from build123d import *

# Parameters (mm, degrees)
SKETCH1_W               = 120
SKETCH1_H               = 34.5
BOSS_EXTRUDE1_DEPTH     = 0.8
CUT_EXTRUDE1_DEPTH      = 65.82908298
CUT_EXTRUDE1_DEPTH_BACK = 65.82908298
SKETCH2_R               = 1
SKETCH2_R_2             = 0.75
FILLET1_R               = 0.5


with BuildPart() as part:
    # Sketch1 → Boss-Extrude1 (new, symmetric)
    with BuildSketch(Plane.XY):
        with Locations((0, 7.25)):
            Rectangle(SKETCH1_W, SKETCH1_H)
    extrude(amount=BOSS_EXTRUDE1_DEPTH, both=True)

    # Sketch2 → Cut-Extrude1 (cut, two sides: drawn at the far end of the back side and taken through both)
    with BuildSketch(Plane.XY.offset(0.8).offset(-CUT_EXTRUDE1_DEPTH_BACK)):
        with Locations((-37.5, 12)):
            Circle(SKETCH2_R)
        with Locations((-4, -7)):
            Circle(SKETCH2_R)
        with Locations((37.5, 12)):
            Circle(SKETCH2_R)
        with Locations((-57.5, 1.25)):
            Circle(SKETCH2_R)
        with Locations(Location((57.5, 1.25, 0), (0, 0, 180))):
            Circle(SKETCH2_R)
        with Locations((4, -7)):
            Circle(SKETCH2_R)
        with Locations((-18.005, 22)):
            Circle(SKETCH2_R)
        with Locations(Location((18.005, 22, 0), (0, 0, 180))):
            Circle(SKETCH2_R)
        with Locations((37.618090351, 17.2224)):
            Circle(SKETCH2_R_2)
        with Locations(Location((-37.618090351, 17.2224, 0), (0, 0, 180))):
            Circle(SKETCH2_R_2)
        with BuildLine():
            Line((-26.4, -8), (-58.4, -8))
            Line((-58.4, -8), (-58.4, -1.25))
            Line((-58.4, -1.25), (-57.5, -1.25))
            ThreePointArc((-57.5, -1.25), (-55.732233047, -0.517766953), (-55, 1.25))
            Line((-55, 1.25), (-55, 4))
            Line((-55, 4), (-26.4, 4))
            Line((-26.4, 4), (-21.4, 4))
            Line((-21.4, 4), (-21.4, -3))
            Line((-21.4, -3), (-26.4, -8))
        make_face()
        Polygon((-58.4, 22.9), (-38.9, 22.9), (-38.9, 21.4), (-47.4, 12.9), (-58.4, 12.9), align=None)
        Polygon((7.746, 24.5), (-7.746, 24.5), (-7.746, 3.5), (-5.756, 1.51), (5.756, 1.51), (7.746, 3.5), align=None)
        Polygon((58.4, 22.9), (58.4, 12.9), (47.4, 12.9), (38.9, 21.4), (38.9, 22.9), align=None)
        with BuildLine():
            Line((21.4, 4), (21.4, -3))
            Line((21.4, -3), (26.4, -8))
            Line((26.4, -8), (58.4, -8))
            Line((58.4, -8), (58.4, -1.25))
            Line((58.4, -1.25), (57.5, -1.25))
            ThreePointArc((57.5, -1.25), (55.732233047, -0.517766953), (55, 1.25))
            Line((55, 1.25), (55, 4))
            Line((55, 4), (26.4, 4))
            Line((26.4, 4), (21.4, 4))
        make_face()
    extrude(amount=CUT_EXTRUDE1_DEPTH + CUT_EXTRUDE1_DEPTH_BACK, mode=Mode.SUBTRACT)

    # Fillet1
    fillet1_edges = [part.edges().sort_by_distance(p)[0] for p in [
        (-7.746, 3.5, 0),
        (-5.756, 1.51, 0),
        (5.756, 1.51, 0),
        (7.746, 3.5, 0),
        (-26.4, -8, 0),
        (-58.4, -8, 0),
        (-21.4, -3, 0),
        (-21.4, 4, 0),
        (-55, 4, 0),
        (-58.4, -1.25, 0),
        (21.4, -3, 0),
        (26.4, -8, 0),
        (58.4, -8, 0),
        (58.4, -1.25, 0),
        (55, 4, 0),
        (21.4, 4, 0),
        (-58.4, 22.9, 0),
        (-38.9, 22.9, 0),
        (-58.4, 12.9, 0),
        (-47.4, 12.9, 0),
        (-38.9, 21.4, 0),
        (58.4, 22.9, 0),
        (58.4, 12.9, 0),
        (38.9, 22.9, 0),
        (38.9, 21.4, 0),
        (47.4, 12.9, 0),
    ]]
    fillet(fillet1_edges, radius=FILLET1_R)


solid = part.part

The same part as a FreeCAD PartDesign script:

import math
import FreeCAD as App
import Part
import Sketcher

V = App.Vector
Q = App.Units.Quantity


def edges_at(feature, points):
    """Names of the edges that pass closest to the given points."""
    edges = feature.Shape.Edges
    near = lambda p: min(range(len(edges)), key=lambda i: edges[i].distToShape(Part.Vertex(*p))[0])
    return sorted({f"Edge{near(p) + 1}" for p in points})


def add_polygon(sketch, points):
    """Adds a closed chain of lines whose ends are joined by coincident constraints."""
    first, n = sketch.GeometryCount, len(points)
    for a, b in zip(points, points[1:] + points[:1]):
        sketch.addGeometry(Part.LineSegment(App.Vector(*a, 0), App.Vector(*b, 0)), False)
    for i in range(n):
        sketch.addConstraint(Sketcher.Constraint("Coincident", first + i, 2, first + (i + 1) % n, 1))

doc = App.newDocument("Part")
body = doc.addObject("PartDesign::Body", "Body")

# Sketch on XY plane
sketch1 = doc.addObject("Sketcher::SketchObject", "Sketch")
body.addObject(sketch1)
sketch1.AttachmentSupport = (doc.XY_Plane, [""])
sketch1.MapMode = "FlatFace"
add_polygon(sketch1, [(-60, 24), (-60, -10), (60, -10), (60, 24)])  # lines 0-3
sketch1.addConstraint([
    Sketcher.Constraint("Vertical", 0),
    Sketcher.Constraint("Horizontal", 1),
    Sketcher.Constraint("Vertical", 2),
    Sketcher.Constraint("Horizontal", 3),
    Sketcher.Constraint("DistanceX", 1, 1, 1, 2, Q("120 mm")),
    Sketcher.Constraint("DistanceY", 0, 2, 0, 1, Q("34.5 mm")),
    Sketcher.Constraint("DistanceX", 0, 2, -1, 1, Q("60 mm")),
    Sketcher.Constraint("DistanceY", 0, 2, -1, 1, Q("10 mm")),
])
pad1 = doc.addObject("PartDesign::Pad", "Pad")
body.addObject(pad1)
pad1.Profile = sketch1
pad1.Length = 1.6
pad1.Midplane = True

# Sketch on XY plane
sketch2 = doc.addObject("Sketcher::SketchObject", "Sketch001")
body.addObject(sketch2)
sketch2.AttachmentSupport = (doc.XY_Plane, [""])
sketch2.MapMode = "FlatFace"
sketch2.AttachmentOffset = App.Placement(V(0, 0, 0.8), App.Rotation())
sketch2.addGeometry(Part.Circle(V(-37.5, 12, 0), V(0, 0, 1), 1), False)  # 0
sketch2.addGeometry(Part.Circle(V(-4, -7, 0), V(0, 0, 1), 1), False)  # 1
sketch2.addGeometry(Part.Circle(V(37.5, 12, 0), V(0, 0, 1), 1), False)  # 2
sketch2.addGeometry(Part.Circle(V(-57.5, 1.2, 0), V(0, 0, 1), 1), False)  # 3
sketch2.addGeometry(Part.Circle(V(57.5, 1.2, 0), V(0, 0, 1), 1), False)  # 4
sketch2.addGeometry(Part.Circle(V(4, -7, 0), V(0, 0, 1), 1), False)  # 5
sketch2.addGeometry(Part.Circle(V(-18, 22, 0), V(0, 0, 1), 1), False)  # 6
sketch2.addGeometry(Part.Circle(V(18, 22, 0), V(0, 0, 1), 1), False)  # 7
sketch2.addGeometry(Part.Circle(V(37.6, 17.2, 0), V(0, 0, 1), 0.8), False)  # 8
sketch2.addGeometry(Part.Circle(V(-37.6, 17.2, 0), V(0, 0, 1), 0.8), False)  # 9
sketch2.addGeometry(Part.LineSegment(V(-58.4, -8, 0), V(-26.4, -8, 0)), False)  # 10
sketch2.addGeometry(Part.LineSegment(V(-26.4, -8, 0), V(-21.4, -3, 0)), False)  # 11
sketch2.addGeometry(Part.LineSegment(V(-21.4, -3, 0), V(-21.4, 4, 0)), False)  # 12
sketch2.addGeometry(Part.LineSegment(V(-21.4, 4, 0), V(-55, 4, 0)), False)  # 13
sketch2.addGeometry(Part.LineSegment(V(-55, 4, 0), V(-55, 1.2, 0)), False)  # 14
sketch2.addGeometry(Part.ArcOfCircle(Part.Circle(V(-57.5, 1.2, 0), V(0, 0, 1), 2.5), math.radians(-90), math.radians(0)), False)  # 15
sketch2.addGeometry(Part.LineSegment(V(-57.5, -1.2, 0), V(-58.4, -1.2, 0)), False)  # 16
sketch2.addGeometry(Part.LineSegment(V(-58.4, -1.2, 0), V(-58.4, -8, 0)), False)  # 17
add_polygon(sketch2, [(-38.9, 22.9), (-58.4, 22.9), (-58.4, 12.9), (-47.4, 12.9), (-38.9, 21.4)])  # lines 18-22
add_polygon(sketch2, [(7.7, 24.5), (-7.7, 24.5), (-7.7, 3.5), (-5.8, 1.5), (5.8, 1.5), (7.7, 3.5)])  # lines 23-28
add_polygon(sketch2, [(58.4, 12.9), (58.4, 22.9), (38.9, 22.9), (38.9, 21.4), (47.4, 12.9)])  # lines 29-33
sketch2.addGeometry(Part.LineSegment(V(21.4, 4, 0), V(21.4, -3, 0)), False)  # 34
sketch2.addGeometry(Part.LineSegment(V(21.4, -3, 0), V(26.4, -8, 0)), False)  # 35
sketch2.addGeometry(Part.LineSegment(V(26.4, -8, 0), V(58.4, -8, 0)), False)  # 36
sketch2.addGeometry(Part.LineSegment(V(58.4, -8, 0), V(58.4, -1.2, 0)), False)  # 37
sketch2.addGeometry(Part.LineSegment(V(58.4, -1.2, 0), V(57.5, -1.2, 0)), False)  # 38
sketch2.addGeometry(Part.ArcOfCircle(Part.Circle(V(57.5, 1.2, 0), V(0, 0, 1), 2.5), math.radians(180), math.radians(270)), False)  # 39
sketch2.addGeometry(Part.LineSegment(V(55, 1.2, 0), V(55, 4, 0)), False)  # 40
sketch2.addGeometry(Part.LineSegment(V(55, 4, 0), V(21.4, 4, 0)), False)  # 41
sketch2.addConstraint([
    Sketcher.Constraint("Coincident", 10, 2, 11, 1),
    Sketcher.Constraint("Coincident", 11, 2, 12, 1),
    Sketcher.Constraint("Coincident", 12, 2, 13, 1),
    Sketcher.Constraint("Coincident", 13, 2, 14, 1),
    Sketcher.Constraint("Tangent", 14, 2, 15, 2),
    Sketcher.Constraint("Tangent", 15, 1, 16, 1),
    Sketcher.Constraint("Coincident", 16, 2, 17, 1),
    Sketcher.Constraint("Coincident", 17, 2, 10, 1),
    Sketcher.Constraint("Coincident", 34, 2, 35, 1),
    Sketcher.Constraint("Coincident", 35, 2, 36, 1),
    Sketcher.Constraint("Coincident", 36, 2, 37, 1),
    Sketcher.Constraint("Coincident", 37, 2, 38, 1),
    Sketcher.Constraint("Tangent", 38, 2, 39, 2),
    Sketcher.Constraint("Tangent", 39, 1, 40, 1),
    Sketcher.Constraint("Coincident", 40, 2, 41, 1),
    Sketcher.Constraint("Coincident", 41, 2, 34, 1),
    Sketcher.Constraint("Horizontal", 10),
    Sketcher.Constraint("Vertical", 12),
    Sketcher.Constraint("Horizontal", 13),
    Sketcher.Constraint("Vertical", 14),
    Sketcher.Constraint("Horizontal", 16),
    Sketcher.Constraint("Vertical", 17),
    Sketcher.Constraint("Horizontal", 18),
    Sketcher.Constraint("Vertical", 19),
    Sketcher.Constraint("Horizontal", 20),
    Sketcher.Constraint("Vertical", 22),
    Sketcher.Constraint("Horizontal", 23),
    Sketcher.Constraint("Vertical", 24),
    Sketcher.Constraint("Horizontal", 26),
    Sketcher.Constraint("Vertical", 28),
    Sketcher.Constraint("Vertical", 29),
    Sketcher.Constraint("Horizontal", 30),
    Sketcher.Constraint("Vertical", 31),
    Sketcher.Constraint("Horizontal", 33),
    Sketcher.Constraint("Vertical", 34),
    Sketcher.Constraint("Horizontal", 36),
    Sketcher.Constraint("Vertical", 37),
    Sketcher.Constraint("Horizontal", 38),
    Sketcher.Constraint("Vertical", 40),
    Sketcher.Constraint("Horizontal", 41),
    Sketcher.Constraint("Coincident", 15, 3, 3, 3),
    Sketcher.Constraint("Coincident", 39, 3, 4, 3),
    Sketcher.Constraint("Equal", 0, 1),
    Sketcher.Constraint("Equal", 1, 2),
    Sketcher.Constraint("Equal", 2, 3),
    Sketcher.Constraint("Equal", 3, 4),
    Sketcher.Constraint("Equal", 4, 5),
    Sketcher.Constraint("Equal", 5, 6),
    Sketcher.Constraint("Equal", 6, 7),
    Sketcher.Constraint("Equal", 8, 9),
    Sketcher.Constraint("Equal", 15, 39),
    Sketcher.Constraint("Symmetric", 0, 3, 2, 3, -2),
    Sketcher.Constraint("Symmetric", 3, 3, 4, 3, -2),
    Sketcher.Constraint("Symmetric", 1, 3, 5, 3, -2),
    Sketcher.Constraint("Symmetric", 6, 3, 7, 3, -2),
    Sketcher.Constraint("Symmetric", 8, 3, 9, 3, -2),
    Sketcher.Constraint("Symmetric", 24, 2, 27, 2, -2),
    Sketcher.Constraint("Symmetric", 18, 2, 29, 2, -2),
    Sketcher.Constraint("Symmetric", 21, 2, 31, 2, -2),
    Sketcher.Constraint("Symmetric", 20, 2, 32, 2, -2),
    Sketcher.Constraint("Symmetric", 11, 2, 34, 2, -2),
    Sketcher.Constraint("Symmetric", 10, 2, 35, 2, -2),
    Sketcher.Constraint("Parallel", 11, 21),
    Sketcher.Constraint("Perpendicular", 21, 25),
    Sketcher.Constraint("Perpendicular", 25, 27),
    Sketcher.Constraint("Perpendicular", 27, 32),
    Sketcher.Constraint("Horizontal", 13, 2, 40, 2),
    Sketcher.Constraint("Vertical", 17, 2, 18, 2),
    Sketcher.Constraint("Vertical", 33, 2, 36, 2),
    Sketcher.Constraint("Diameter", 0, Q("2 mm")),
    Sketcher.Constraint("Diameter", 8, Q("1.5 mm")),
    Sketcher.Constraint("Radius", 15, Q("2.5 mm")),
    Sketcher.Constraint("DistanceX", 10, 1, 10, 2, Q("32 mm")),
    Sketcher.Constraint("DistanceX", 20, 1, 20, 2, Q("11 mm")),
    Sketcher.Constraint("DistanceY", 12, 1, 12, 2, Q("7 mm")),
    Sketcher.Constraint("DistanceY", 19, 2, 19, 1, Q("10 mm")),
    Sketcher.Constraint("DistanceY", 24, 2, 24, 1, Q("21 mm")),
    Sketcher.Constraint("DistanceX", 13, 2, 13, 1, Q("33.6 mm")),
    Sketcher.Constraint("DistanceX", 16, 2, 16, 1, Q("0.9 mm")),
    Sketcher.Constraint("DistanceX", 18, 2, 18, 1, Q("19.5 mm")),
    Sketcher.Constraint("DistanceY", -1, 1, 0, 3, Q("12 mm")),
    Sketcher.Constraint("DistanceX", 1, 3, -1, 1, Q("4 mm")),
    Sketcher.Constraint("DistanceY", 1, 3, -1, 1, Q("7 mm")),
    Sketcher.Constraint("DistanceY", -1, 1, 6, 3, Q("22 mm")),
    Sketcher.Constraint("DistanceY", 10, 2, -1, 1, Q("8 mm")),
    Sketcher.Constraint("DistanceX", 13, 2, -1, 1, Q("55 mm")),
    Sketcher.Constraint("DistanceX", 0, 3, 2, 3, Q("75 mm")),
    Sketcher.Constraint("DistanceY", 14, 2, 14, 1, Q("2.75 mm")),
    Sketcher.Constraint("DistanceY", -1, 1, 18, 2, Q("22.9 mm")),
    Sketcher.Constraint("DistanceY", -1, 1, 23, 2, Q("24.5 mm")),
    Sketcher.Constraint("DistanceX", 23, 2, 23, 1, Q("15.492 mm")),
    Sketcher.Constraint("DistanceX", 26, 1, 26, 2, Q("11.512 mm")),
    Sketcher.Constraint("DistanceX", 6, 3, 7, 3, Q("36.01 mm")),
    Sketcher.Constraint("DistanceY", -1, 1, 8, 3, Q("17.2224 mm")),
    Sketcher.Constraint("DistanceX", -1, 1, 8, 3, Q("37.61809 mm")),
])
pocket1 = doc.addObject("PartDesign::Pocket", "Pocket")
body.addObject(pocket1)
pocket1.Profile = sketch2
pocket1.Type = "ThroughAll"
pocket1.Midplane = True
doc.recompute()

fillet = doc.addObject("PartDesign::Fillet", "Fillet")
body.addObject(fillet)
fillet.Base = (pocket1, edges_at(pocket1, [
    (-7.746, 3.5, 0),
    (-5.756, 1.51, 0),
    (5.756, 1.51, 0),
    (7.746, 3.5, 0),
    (-26.4, -8, 0),
    (-58.4, -8, 0),
    (-21.4, -3, 0),
    (-21.4, 4, 0),
    (-55, 4, 0),
    (-58.4, -1.25, 0),
    (21.4, -3, 0),
    (26.4, -8, 0),
    (58.4, -8, 0),
    (58.4, -1.25, 0),
    (55, 4, 0),
    (21.4, 4, 0),
    (-58.4, 22.9, 0),
    (-38.9, 22.9, 0),
    (-58.4, 12.9, 0),
    (-47.4, 12.9, 0),
    (-38.9, 21.4, 0),
    (58.4, 22.9, 0),
    (58.4, 12.9, 0),
    (38.9, 22.9, 0),
    (38.9, 21.4, 0),
    (47.4, 12.9, 0),
]))
fillet.Radius = 0.5

doc.recompute()
